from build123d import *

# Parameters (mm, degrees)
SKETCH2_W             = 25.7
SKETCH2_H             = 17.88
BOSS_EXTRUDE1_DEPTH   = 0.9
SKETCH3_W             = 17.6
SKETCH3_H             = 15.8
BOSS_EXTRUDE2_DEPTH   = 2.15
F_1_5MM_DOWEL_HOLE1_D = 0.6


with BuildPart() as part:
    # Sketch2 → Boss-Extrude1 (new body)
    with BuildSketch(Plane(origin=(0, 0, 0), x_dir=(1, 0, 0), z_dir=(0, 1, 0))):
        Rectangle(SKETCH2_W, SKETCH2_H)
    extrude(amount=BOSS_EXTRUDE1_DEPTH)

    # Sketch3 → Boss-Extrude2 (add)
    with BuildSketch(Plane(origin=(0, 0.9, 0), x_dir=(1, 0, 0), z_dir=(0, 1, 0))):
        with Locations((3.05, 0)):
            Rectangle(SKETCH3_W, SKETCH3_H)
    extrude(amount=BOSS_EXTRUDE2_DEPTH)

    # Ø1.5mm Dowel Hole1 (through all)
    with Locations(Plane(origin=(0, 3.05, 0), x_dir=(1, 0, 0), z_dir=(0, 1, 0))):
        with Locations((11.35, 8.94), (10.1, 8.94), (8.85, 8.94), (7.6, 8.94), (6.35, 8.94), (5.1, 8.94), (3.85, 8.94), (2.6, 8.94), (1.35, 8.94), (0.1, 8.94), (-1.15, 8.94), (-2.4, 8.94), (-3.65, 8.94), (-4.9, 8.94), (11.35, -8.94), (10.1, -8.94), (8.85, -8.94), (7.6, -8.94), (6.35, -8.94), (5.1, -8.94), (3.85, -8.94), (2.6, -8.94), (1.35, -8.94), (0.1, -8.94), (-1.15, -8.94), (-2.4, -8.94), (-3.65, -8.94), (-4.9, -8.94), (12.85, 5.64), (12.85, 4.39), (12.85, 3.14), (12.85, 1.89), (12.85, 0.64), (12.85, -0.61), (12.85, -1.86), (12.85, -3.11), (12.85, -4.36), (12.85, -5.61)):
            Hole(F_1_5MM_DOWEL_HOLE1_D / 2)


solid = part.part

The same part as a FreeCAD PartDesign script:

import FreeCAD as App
import Part
import Sketcher
from FreeCAD import Vector


def add_polygon(sketch, points):
    """Adds a closed chain of lines whose ends are joined by coincident constraints."""
    first, n = sketch.GeometryCount, len(points)
    for a, b in zip(points, points[1:] + points[:1]):
        sketch.addGeometry(Part.LineSegment(App.Vector(*a, 0), App.Vector(*b, 0)), False)
    for i in range(n):
        sketch.addConstraint(Sketcher.Constraint("Coincident", first + i, 2, first + (i + 1) % n, 1))

doc = App.newDocument("Part")
body = doc.addObject("PartDesign::Body", "Body")

sketch1 = body.newObject("Sketcher::SketchObject", "Sketch")
sketch1.AttachmentSupport = (doc.getObject("XZ_Plane"), [""])
sketch1.MapMode = "FlatFace"
add_polygon(sketch1, [(-13, -9), (-13, 9), (13, 9), (13, -9)])
sketch1.addConstraint(Sketcher.Constraint("Vertical", 0))
sketch1.addConstraint(Sketcher.Constraint("Horizontal", 1))
sketch1.addConstraint(Sketcher.Constraint("Vertical", 2))
sketch1.addConstraint(Sketcher.Constraint("Horizontal", 3))
sketch1.addConstraint(Sketcher.Constraint("Symmetric", 0, 2, 2, 2, -1, 1))
sketch1.addConstraint(Sketcher.Constraint("DistanceX", 1, 1, 1, 2, 25.7))
sketch1.addConstraint(Sketcher.Constraint("DistanceY", 0, 1, 0, 2, 17.88))
pad1 = body.newObject("PartDesign::Pad", "Pad")
pad1.Profile = sketch1
pad1.Length = 0.9
pad1.Reversed = True

sketch2 = body.newObject("Sketcher::SketchObject", "Sketch001")
sketch2.AttachmentSupport = (doc.getObject("XZ_Plane"), [""])
sketch2.MapMode = "FlatFace"
sketch2.AttachmentOffset = App.Placement(Vector(0, 0, -0.9), App.Rotation())
add_polygon(sketch2, [(-6, -8), (-6, 8), (12, 8), (12, -8)])
sketch2.addConstraint(Sketcher.Constraint("Vertical", 0))
sketch2.addConstraint(Sketcher.Constraint("Horizontal", 1))
sketch2.addConstraint(Sketcher.Constraint("Vertical", 2))
sketch2.addConstraint(Sketcher.Constraint("Horizontal", 3))
sketch2.addConstraint(Sketcher.Constraint("DistanceX", 1, 1, 1, 2, 17.6))
sketch2.addConstraint(Sketcher.Constraint("DistanceY", 0, 1, 0, 2, 15.8))
sketch2.addConstraint(Sketcher.Constraint("DistanceY", -1, 1, 0, 2, 7.9))
sketch2.addConstraint(Sketcher.Constraint("DistanceX", 0, 2, -1, 1, 5.75))
pad2 = body.newObject("PartDesign::Pad", "Pad001")
pad2.Profile = sketch2
pad2.Length = 2.15
pad2.Reversed = True

sketch3 = body.newObject("Sketcher::SketchObject", "Sketch002")
sketch3.AttachmentSupport = (doc.getObject("XZ_Plane"), [""])
sketch3.MapMode = "FlatFace"
sketch3.AttachmentOffset = App.Placement(Vector(0, 0, -3.05), App.Rotation())
sketch3.addGeometry(Part.Circle(Vector(11.35, -8.94, 0), Vector(0, 0, 1), 0.3), False)
sketch3.addGeometry(Part.Circle(Vector(10.1, -8.94, 0), Vector(0, 0, 1), 0.3), False)
sketch3.addGeometry(Part.Circle(Vector(8.85, -8.94, 0), Vector(0, 0, 1), 0.3), False)
sketch3.addGeometry(Part.Circle(Vector(7.6, -8.94, 0), Vector(0, 0, 1), 0.3), False)
sketch3.addGeometry(Part.Circle(Vector(6.35, -8.94, 0), Vector(0, 0, 1), 0.3), False)
sketch3.addGeometry(Part.Circle(Vector(5.1, -8.94, 0), Vector(0, 0, 1), 0.3), False)
sketch3.addGeometry(Part.Circle(Vector(3.85, -8.94, 0), Vector(0, 0, 1), 0.3), False)
sketch3.addGeometry(Part.Circle(Vector(2.6, -8.94, 0), Vector(0, 0, 1), 0.3), False)
sketch3.addGeometry(Part.Circle(Vector(1.35, -8.94, 0), Vector(0, 0, 1), 0.3), False)
sketch3.addGeometry(Part.Circle(Vector(0.1, -8.94, 0), Vector(0, 0, 1), 0.3), False)
sketch3.addGeometry(Part.Circle(Vector(-1.15, -8.94, 0), Vector(0, 0, 1), 0.3), False)
sketch3.addGeometry(Part.Circle(Vector(-2.4, -8.94, 0), Vector(0, 0, 1), 0.3), False)
sketch3.addGeometry(Part.Circle(Vector(-3.65, -8.94, 0), Vector(0, 0, 1), 0.3), False)
sketch3.addGeometry(Part.Circle(Vector(-4.9, -8.94, 0), Vector(0, 0, 1), 0.3), False)
sketch3.addGeometry(Part.Circle(Vector(11.35, 8.94, 0), Vector(0, 0, 1), 0.3), False)
sketch3.addGeometry(Part.Circle(Vector(10.1, 8.94, 0), Vector(0, 0, 1), 0.3), False)
sketch3.addGeometry(Part.Circle(Vector(8.85, 8.94, 0), Vector(0, 0, 1), 0.3), False)
sketch3.addGeometry(Part.Circle(Vector(7.6, 8.94, 0), Vector(0, 0, 1), 0.3), False)
sketch3.addGeometry(Part.Circle(Vector(6.35, 8.94, 0), Vector(0, 0, 1), 0.3), False)
sketch3.addGeometry(Part.Circle(Vector(5.1, 8.94, 0), Vector(0, 0, 1), 0.3), False)
sketch3.addGeometry(Part.Circle(Vector(3.85, 8.94, 0), Vector(0, 0, 1), 0.3), False)
sketch3.addGeometry(Part.Circle(Vector(2.6, 8.94, 0), Vector(0, 0, 1), 0.3), False)
sketch3.addGeometry(Part.Circle(Vector(1.35, 8.94, 0), Vector(0, 0, 1), 0.3), False)
sketch3.addGeometry(Part.Circle(Vector(0.1, 8.94, 0), Vector(0, 0, 1), 0.3), False)
sketch3.addGeometry(Part.Circle(Vector(-1.15, 8.94, 0), Vector(0, 0, 1), 0.3), False)
sketch3.addGeometry(Part.Circle(Vector(-2.4, 8.94, 0), Vector(0, 0, 1), 0.3), False)
sketch3.addGeometry(Part.Circle(Vector(-3.65, 8.94, 0), Vector(0, 0, 1), 0.3), False)
sketch3.addGeometry(Part.Circle(Vector(-4.9, 8.94, 0), Vector(0, 0, 1), 0.3), False)
sketch3.addGeometry(Part.Circle(Vector(12.85, -5.64, 0), Vector(0, 0, 1), 0.3), False)
sketch3.addGeometry(Part.Circle(Vector(12.85, -4.39, 0), Vector(0, 0, 1), 0.3), False)
sketch3.addGeometry(Part.Circle(Vector(12.85, -3.14, 0), Vector(0, 0, 1), 0.3), False)
sketch3.addGeometry(Part.Circle(Vector(12.85, -1.89, 0), Vector(0, 0, 1), 0.3), False)
sketch3.addGeometry(Part.Circle(Vector(12.85, -0.64, 0), Vector(0, 0, 1), 0.3), False)
sketch3.addGeometry(Part.Circle(Vector(12.85, 0.61, 0), Vector(0, 0, 1), 0.3), False)
sketch3.addGeometry(Part.Circle(Vector(12.85, 1.86, 0), Vector(0, 0, 1), 0.3), False)
sketch3.addGeometry(Part.Circle(Vector(12.85, 3.11, 0), Vector(0, 0, 1), 0.3), False)
sketch3.addGeometry(Part.Circle(Vector(12.85, 4.36, 0), Vector(0, 0, 1), 0.3), False)
sketch3.addGeometry(Part.Circle(Vector(12.85, 5.61, 0), Vector(0, 0, 1), 0.3), False)
sketch3.addConstraint(Sketcher.Constraint("Equal", 0, 1))
sketch3.addConstraint(Sketcher.Constraint("Equal", 1, 2))
sketch3.addConstraint(Sketcher.Constraint("Equal", 2, 3))
sketch3.addConstraint(Sketcher.Constraint("Equal", 3, 4))
sketch3.addConstraint(Sketcher.Constraint("Equal", 4, 5))
sketch3.addConstraint(Sketcher.Constraint("Equal", 5, 6))
sketch3.addConstraint(Sketcher.Constraint("Equal", 6, 7))
sketch3.addConstraint(Sketcher.Constraint("Equal", 7, 8))
sketch3.addConstraint(Sketcher.Constraint("Equal", 8, 9))
sketch3.addConstraint(Sketcher.Constraint("Equal", 9, 10))
sketch3.addConstraint(Sketcher.Constraint("Equal", 10, 11))
sketch3.addConstraint(Sketcher.Constraint("Equal", 11, 12))
sketch3.addConstraint(Sketcher.Constraint("Equal", 12, 13))
sketch3.addConstraint(Sketcher.Constraint("Equal", 13, 14))
sketch3.addConstraint(Sketcher.Constraint("Equal", 14, 15))
sketch3.addConstraint(Sketcher.Constraint("Equal", 15, 16))
sketch3.addConstraint(Sketcher.Constraint("Equal", 16, 17))
sketch3.addConstraint(Sketcher.Constraint("Equal", 17, 18))
sketch3.addConstraint(Sketcher.Constraint("Equal", 18, 19))
sketch3.addConstraint(Sketcher.Constraint("Equal", 19, 20))
sketch3.addConstraint(Sketcher.Constraint("Equal", 20, 21))
sketch3.addConstraint(Sketcher.Constraint("Equal", 21, 22))
sketch3.addConstraint(Sketcher.Constraint("Equal", 22, 23))
sketch3.addConstraint(Sketcher.Constraint("Equal", 23, 24))
sketch3.addConstraint(Sketcher.Constraint("Equal", 24, 25))
sketch3.addConstraint(Sketcher.Constraint("Equal", 25, 26))
sketch3.addConstraint(Sketcher.Constraint("Equal", 26, 27))
sketch3.addConstraint(Sketcher.Constraint("Equal", 27, 28))
sketch3.addConstraint(Sketcher.Constraint("Equal", 28, 29))
sketch3.addConstraint(Sketcher.Constraint("Equal", 29, 30))
sketch3.addConstraint(Sketcher.Constraint("Equal", 30, 31))
sketch3.addConstraint(Sketcher.Constraint("Equal", 31, 32))
sketch3.addConstraint(Sketcher.Constraint("Equal", 32, 33))
sketch3.addConstraint(Sketcher.Constraint("Equal", 33, 34))
sketch3.addConstraint(Sketcher.Constraint("Equal", 34, 35))
sketch3.addConstraint(Sketcher.Constraint("Equal", 35, 36))
sketch3.addConstraint(Sketcher.Constraint("Equal", 36, 37))
sketch3.addConstraint(Sketcher.Constraint("Symmetric", 0, 3, 14, 3, -1))
sketch3.addConstraint(Sketcher.Constraint("Symmetric", 1, 3, 15, 3, -1))
sketch3.addConstraint(Sketcher.Constraint("Symmetric", 2, 3, 16, 3, -1))
sketch3.addConstraint(Sketcher.Constraint("Symmetric", 3, 3, 17, 3, -1))
sketch3.addConstraint(Sketcher.Constraint("Symmetric", 4, 3, 18, 3, -1))
sketch3.addConstraint(Sketcher.Constraint("Symmetric", 5, 3, 19, 3, -1))
sketch3.addConstraint(Sketcher.Constraint("Symmetric", 6, 3, 20, 3, -1))
sketch3.addConstraint(Sketcher.Constraint("Symmetric", 7, 3, 21, 3, -1))
sketch3.addConstraint(Sketcher.Constraint("Symmetric", 8, 3, 22, 3, -1))
sketch3.addConstraint(Sketcher.Constraint("Symmetric", 9, 3, 23, 3, -1))
sketch3.addConstraint(Sketcher.Constraint("Symmetric", 10, 3, 24, 3, -1))
sketch3.addConstraint(Sketcher.Constraint("Symmetric", 11, 3, 25, 3, -1))
sketch3.addConstraint(Sketcher.Constraint("Symmetric", 12, 3, 26, 3, -1))
sketch3.addConstraint(Sketcher.Constraint("Symmetric", 13, 3, 27, 3, -1))
sketch3.addConstraint(Sketcher.Constraint("Horizontal", 0, 3, 1, 3))
sketch3.addConstraint(Sketcher.Constraint("Horizontal", 1, 3, 2, 3))
sketch3.addConstraint(Sketcher.Constraint("Horizontal", 2, 3, 3, 3))
sketch3.addConstraint(Sketcher.Constraint("Horizontal", 3, 3, 4, 3))
sketch3.addConstraint(Sketcher.Constraint("Horizontal", 4, 3, 5, 3))
sketch3.addConstraint(Sketcher.Constraint("Horizontal", 5, 3, 6, 3))
sketch3.addConstraint(Sketcher.Constraint("Horizontal", 6, 3, 7, 3))
sketch3.addConstraint(Sketcher.Constraint("Horizontal", 7, 3, 8, 3))
sketch3.addConstraint(Sketcher.Constraint("Horizontal", 8, 3, 9, 3))
sketch3.addConstraint(Sketcher.Constraint("Horizontal", 9, 3, 10, 3))
sketch3.addConstraint(Sketcher.Constraint("Horizontal", 10, 3, 11, 3))
sketch3.addConstraint(Sketcher.Constraint("Horizontal", 11, 3, 12, 3))
sketch3.addConstraint(Sketcher.Constraint("Horizontal", 12, 3, 13, 3))
sketch3.addConstraint(Sketcher.Constraint("Vertical", 28, 3, 29, 3))
sketch3.addConstraint(Sketcher.Constraint("Vertical", 29, 3, 30, 3))
sketch3.addConstraint(Sketcher.Constraint("Vertical", 30, 3, 31, 3))
sketch3.addConstraint(Sketcher.Constraint("Vertical", 31, 3, 32, 3))
sketch3.addConstraint(Sketcher.Constraint("Vertical", 32, 3, 33, 3))
sketch3.addConstraint(Sketcher.Constraint("Vertical", 33, 3, 34, 3))
sketch3.addConstraint(Sketcher.Constraint("Vertical", 34, 3, 35, 3))
sketch3.addConstraint(Sketcher.Constraint("Vertical", 35, 3, 36, 3))
sketch3.addConstraint(Sketcher.Constraint("Vertical", 36, 3, 37, 3))
sketch3.addConstraint(Sketcher.Constraint("Diameter", 0, 0.6))
sketch3.addConstraint(Sketcher.Constraint("DistanceX", 4, 3, 0, 3, 5.0))
sketch3.addConstraint(Sketcher.Constraint("DistanceX", 5, 3, 1, 3, 5.0))
sketch3.addConstraint(Sketcher.Constraint("DistanceX", 6, 3, 2, 3, 5.0))
sketch3.addConstraint(Sketcher.Constraint("DistanceX", 7, 3, 3, 3, 5.0))
sketch3.addConstraint(Sketcher.Constraint("DistanceX", 8, 3, 4, 3, 5.0))
sketch3.addConstraint(Sketcher.Constraint("DistanceX", 9, 3, 5, 3, 5.0))
sketch3.addConstraint(Sketcher.Constraint("DistanceX", 10, 3, 6, 3, 5.0))
sketch3.addConstraint(Sketcher.Constraint("DistanceX", 11, 3, 7, 3, 5.0))
sketch3.addConstraint(Sketcher.Constraint("DistanceX", 12, 3, 8, 3, 5.0))
sketch3.addConstraint(Sketcher.Constraint("DistanceX", 13, 3, 9, 3, 5.0))
sketch3.addConstraint(Sketcher.Constraint("DistanceX", 2, 3, 28, 3, 4.0))
sketch3.addConstraint(Sketcher.Constraint("DistanceY", 28, 3, 32, 3, 5.0))
sketch3.addConstraint(Sketcher.Constraint("DistanceY", 29, 3, 33, 3, 5.0))
sketch3.addConstraint(Sketcher.Constraint("DistanceY", 30, 3, 34, 3, 5.0))
sketch3.addConstraint(Sketcher.Constraint("DistanceY", 31, 3, 35, 3, 5.0))
sketch3.addConstraint(Sketcher.Constraint("DistanceY", 32, 3, 36, 3, 5.0))
sketch3.addConstraint(Sketcher.Constraint("DistanceX", -1, 1, 1, 3, 10.1))
sketch3.addConstraint(Sketcher.Constraint("DistanceX", -1, 1, 3, 3, 7.6))
sketch3.addConstraint(Sketcher.Constraint("DistanceX", 2, 3, 0, 3, 2.5))
sketch3.addConstraint(Sketcher.Constraint("DistanceY", 0, 3, 28, 3, 3.3))
sketch3.addConstraint(Sketcher.Constraint("DistanceY", 28, 3, 30, 3, 2.5))
sketch3.addConstraint(Sketcher.Constraint("DistanceY", 29, 3, 31, 3, 2.5))
sketch3.addConstraint(Sketcher.Constraint("DistanceY", 35, 3, 37, 3, 2.5))
sketch3.addConstraint(Sketcher.Constraint("DistanceX", -1, 1, 0, 3, 11.35))
sketch3.addConstraint(Sketcher.Constraint("DistanceY", 0, 3, -1, 1, 8.94))
sketch3.addConstraint(Sketcher.Constraint("DistanceY", 29, 3, -1, 1, 4.39))
doc.recompute()
hole = body.newObject("PartDesign::Hole", "Hole")
hole.Profile = sketch3
hole.ThreadType = "None"
hole.Diameter = 0.6
hole.DepthType = "ThroughAll"
hole.Reversed = True

doc.recompute()
